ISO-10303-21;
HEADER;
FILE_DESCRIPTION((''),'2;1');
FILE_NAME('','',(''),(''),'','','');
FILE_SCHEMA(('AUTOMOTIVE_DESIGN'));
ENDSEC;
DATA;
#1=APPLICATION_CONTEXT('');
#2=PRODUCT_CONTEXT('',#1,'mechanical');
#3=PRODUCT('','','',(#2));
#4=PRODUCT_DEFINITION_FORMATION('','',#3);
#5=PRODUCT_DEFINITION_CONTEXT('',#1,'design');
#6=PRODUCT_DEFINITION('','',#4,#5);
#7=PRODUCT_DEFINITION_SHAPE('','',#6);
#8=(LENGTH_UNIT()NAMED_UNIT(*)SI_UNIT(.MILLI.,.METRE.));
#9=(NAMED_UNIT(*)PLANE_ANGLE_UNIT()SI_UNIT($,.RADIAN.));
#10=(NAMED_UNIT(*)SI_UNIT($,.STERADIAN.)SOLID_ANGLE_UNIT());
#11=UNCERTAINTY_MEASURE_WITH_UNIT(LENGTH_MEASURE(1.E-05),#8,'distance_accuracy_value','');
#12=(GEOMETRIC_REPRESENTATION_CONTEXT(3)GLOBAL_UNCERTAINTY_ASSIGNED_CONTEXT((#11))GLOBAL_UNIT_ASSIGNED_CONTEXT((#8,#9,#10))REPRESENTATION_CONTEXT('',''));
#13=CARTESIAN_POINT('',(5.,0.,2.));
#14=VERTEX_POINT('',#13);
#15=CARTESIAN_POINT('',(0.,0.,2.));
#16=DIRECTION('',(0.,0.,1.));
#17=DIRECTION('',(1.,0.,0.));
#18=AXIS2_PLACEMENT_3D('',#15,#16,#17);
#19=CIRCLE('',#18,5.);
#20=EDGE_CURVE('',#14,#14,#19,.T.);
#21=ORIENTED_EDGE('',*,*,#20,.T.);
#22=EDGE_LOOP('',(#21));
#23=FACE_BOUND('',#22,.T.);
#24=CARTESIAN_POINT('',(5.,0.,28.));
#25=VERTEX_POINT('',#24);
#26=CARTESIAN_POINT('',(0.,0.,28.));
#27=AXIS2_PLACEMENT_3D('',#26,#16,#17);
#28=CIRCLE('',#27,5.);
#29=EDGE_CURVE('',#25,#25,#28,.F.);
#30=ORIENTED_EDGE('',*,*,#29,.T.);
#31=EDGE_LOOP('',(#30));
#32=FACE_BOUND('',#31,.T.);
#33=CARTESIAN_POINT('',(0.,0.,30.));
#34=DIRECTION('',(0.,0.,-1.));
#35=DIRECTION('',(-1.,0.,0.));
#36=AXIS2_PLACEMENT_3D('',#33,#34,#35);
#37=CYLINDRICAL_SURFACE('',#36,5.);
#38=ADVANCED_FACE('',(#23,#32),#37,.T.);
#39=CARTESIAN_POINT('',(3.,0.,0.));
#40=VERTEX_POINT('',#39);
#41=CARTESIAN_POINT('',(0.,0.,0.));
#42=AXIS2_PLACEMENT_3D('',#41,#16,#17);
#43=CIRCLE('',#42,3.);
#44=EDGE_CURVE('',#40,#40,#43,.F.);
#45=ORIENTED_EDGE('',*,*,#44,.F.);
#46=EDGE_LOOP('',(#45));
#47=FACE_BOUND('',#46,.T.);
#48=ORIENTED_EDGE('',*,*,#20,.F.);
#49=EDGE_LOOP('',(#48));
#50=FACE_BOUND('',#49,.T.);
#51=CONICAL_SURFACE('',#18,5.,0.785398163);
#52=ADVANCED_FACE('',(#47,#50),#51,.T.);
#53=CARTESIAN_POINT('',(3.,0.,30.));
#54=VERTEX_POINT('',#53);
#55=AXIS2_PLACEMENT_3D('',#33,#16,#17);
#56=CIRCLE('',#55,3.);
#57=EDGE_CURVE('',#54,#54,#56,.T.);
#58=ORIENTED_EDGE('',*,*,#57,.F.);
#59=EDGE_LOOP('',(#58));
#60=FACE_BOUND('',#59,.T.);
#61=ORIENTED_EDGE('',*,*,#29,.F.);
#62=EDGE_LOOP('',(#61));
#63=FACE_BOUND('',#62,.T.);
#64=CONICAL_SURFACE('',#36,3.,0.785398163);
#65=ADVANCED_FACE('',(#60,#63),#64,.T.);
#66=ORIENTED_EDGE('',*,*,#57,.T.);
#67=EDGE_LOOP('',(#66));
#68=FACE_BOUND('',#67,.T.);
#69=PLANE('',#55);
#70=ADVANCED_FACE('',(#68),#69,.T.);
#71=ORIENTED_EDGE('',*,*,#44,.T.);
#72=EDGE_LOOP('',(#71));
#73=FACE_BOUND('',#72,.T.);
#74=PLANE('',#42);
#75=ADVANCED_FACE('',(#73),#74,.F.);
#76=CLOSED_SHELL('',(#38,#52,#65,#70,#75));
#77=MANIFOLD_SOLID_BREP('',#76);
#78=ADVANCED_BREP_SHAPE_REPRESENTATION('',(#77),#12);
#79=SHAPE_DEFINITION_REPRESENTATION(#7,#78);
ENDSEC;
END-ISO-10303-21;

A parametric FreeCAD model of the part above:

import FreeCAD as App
import Part
import Sketcher
Q = App.Units.Quantity


def edges_at(feature, points):
    """Names of the edges that pass closest to the given points."""
    edges = feature.Shape.Edges
    near = lambda p: min(range(len(edges)), key=lambda i: edges[i].distToShape(Part.Vertex(*p))[0])
    return sorted({f"Edge{near(p) + 1}" for p in points})

doc = App.newDocument("Part")
params = doc.addObject("Spreadsheet::Sheet", "Params")
for row, (alias, value) in enumerate([
    ("sketch1_diameter", "10 mm"),
    ("pad1_length", "30 mm"),
    ("chamfer_size", "2 mm"),
], start=1):
    params.set(f"A{row}", alias)
    params.set(f"B{row}", "=" + value)
    params.setAlias(f"B{row}", alias)

body = doc.addObject("PartDesign::Body", "Body")

# Sketch on XY plane
sketch1 = body.newObject("Sketcher::SketchObject", "Sketch")
sketch1.AttachmentSupport = (doc.getObject("XY_Plane"), [""])
sketch1.MapMode = "FlatFace"
sketch1.addGeometry(Part.Circle(App.Vector(0, 0, 0), App.Vector(0, 0, 1), 5), False)
sketch1.addConstraint([
    Sketcher.Constraint("Coincident", 0, 3, -1, 1),
    Sketcher.Constraint("Diameter", 0, Q("10 mm")),
])
sketch1.setExpression("Constraints[1]", "Params.sketch1_diameter")
pad1 = body.newObject("PartDesign::Pad", "Pad")
pad1.Profile = sketch1
pad1.setExpression("Length", "Params.pad1_length")
doc.recompute()

chamfer = body.newObject("PartDesign::Chamfer", "Chamfer")
chamfer.Base = (pad1, edges_at(pad1, [(-5, 0, 0), (-5, 0, 30)]))
chamfer.setExpression("Size", "Params.chamfer_size")

doc.recompute()
